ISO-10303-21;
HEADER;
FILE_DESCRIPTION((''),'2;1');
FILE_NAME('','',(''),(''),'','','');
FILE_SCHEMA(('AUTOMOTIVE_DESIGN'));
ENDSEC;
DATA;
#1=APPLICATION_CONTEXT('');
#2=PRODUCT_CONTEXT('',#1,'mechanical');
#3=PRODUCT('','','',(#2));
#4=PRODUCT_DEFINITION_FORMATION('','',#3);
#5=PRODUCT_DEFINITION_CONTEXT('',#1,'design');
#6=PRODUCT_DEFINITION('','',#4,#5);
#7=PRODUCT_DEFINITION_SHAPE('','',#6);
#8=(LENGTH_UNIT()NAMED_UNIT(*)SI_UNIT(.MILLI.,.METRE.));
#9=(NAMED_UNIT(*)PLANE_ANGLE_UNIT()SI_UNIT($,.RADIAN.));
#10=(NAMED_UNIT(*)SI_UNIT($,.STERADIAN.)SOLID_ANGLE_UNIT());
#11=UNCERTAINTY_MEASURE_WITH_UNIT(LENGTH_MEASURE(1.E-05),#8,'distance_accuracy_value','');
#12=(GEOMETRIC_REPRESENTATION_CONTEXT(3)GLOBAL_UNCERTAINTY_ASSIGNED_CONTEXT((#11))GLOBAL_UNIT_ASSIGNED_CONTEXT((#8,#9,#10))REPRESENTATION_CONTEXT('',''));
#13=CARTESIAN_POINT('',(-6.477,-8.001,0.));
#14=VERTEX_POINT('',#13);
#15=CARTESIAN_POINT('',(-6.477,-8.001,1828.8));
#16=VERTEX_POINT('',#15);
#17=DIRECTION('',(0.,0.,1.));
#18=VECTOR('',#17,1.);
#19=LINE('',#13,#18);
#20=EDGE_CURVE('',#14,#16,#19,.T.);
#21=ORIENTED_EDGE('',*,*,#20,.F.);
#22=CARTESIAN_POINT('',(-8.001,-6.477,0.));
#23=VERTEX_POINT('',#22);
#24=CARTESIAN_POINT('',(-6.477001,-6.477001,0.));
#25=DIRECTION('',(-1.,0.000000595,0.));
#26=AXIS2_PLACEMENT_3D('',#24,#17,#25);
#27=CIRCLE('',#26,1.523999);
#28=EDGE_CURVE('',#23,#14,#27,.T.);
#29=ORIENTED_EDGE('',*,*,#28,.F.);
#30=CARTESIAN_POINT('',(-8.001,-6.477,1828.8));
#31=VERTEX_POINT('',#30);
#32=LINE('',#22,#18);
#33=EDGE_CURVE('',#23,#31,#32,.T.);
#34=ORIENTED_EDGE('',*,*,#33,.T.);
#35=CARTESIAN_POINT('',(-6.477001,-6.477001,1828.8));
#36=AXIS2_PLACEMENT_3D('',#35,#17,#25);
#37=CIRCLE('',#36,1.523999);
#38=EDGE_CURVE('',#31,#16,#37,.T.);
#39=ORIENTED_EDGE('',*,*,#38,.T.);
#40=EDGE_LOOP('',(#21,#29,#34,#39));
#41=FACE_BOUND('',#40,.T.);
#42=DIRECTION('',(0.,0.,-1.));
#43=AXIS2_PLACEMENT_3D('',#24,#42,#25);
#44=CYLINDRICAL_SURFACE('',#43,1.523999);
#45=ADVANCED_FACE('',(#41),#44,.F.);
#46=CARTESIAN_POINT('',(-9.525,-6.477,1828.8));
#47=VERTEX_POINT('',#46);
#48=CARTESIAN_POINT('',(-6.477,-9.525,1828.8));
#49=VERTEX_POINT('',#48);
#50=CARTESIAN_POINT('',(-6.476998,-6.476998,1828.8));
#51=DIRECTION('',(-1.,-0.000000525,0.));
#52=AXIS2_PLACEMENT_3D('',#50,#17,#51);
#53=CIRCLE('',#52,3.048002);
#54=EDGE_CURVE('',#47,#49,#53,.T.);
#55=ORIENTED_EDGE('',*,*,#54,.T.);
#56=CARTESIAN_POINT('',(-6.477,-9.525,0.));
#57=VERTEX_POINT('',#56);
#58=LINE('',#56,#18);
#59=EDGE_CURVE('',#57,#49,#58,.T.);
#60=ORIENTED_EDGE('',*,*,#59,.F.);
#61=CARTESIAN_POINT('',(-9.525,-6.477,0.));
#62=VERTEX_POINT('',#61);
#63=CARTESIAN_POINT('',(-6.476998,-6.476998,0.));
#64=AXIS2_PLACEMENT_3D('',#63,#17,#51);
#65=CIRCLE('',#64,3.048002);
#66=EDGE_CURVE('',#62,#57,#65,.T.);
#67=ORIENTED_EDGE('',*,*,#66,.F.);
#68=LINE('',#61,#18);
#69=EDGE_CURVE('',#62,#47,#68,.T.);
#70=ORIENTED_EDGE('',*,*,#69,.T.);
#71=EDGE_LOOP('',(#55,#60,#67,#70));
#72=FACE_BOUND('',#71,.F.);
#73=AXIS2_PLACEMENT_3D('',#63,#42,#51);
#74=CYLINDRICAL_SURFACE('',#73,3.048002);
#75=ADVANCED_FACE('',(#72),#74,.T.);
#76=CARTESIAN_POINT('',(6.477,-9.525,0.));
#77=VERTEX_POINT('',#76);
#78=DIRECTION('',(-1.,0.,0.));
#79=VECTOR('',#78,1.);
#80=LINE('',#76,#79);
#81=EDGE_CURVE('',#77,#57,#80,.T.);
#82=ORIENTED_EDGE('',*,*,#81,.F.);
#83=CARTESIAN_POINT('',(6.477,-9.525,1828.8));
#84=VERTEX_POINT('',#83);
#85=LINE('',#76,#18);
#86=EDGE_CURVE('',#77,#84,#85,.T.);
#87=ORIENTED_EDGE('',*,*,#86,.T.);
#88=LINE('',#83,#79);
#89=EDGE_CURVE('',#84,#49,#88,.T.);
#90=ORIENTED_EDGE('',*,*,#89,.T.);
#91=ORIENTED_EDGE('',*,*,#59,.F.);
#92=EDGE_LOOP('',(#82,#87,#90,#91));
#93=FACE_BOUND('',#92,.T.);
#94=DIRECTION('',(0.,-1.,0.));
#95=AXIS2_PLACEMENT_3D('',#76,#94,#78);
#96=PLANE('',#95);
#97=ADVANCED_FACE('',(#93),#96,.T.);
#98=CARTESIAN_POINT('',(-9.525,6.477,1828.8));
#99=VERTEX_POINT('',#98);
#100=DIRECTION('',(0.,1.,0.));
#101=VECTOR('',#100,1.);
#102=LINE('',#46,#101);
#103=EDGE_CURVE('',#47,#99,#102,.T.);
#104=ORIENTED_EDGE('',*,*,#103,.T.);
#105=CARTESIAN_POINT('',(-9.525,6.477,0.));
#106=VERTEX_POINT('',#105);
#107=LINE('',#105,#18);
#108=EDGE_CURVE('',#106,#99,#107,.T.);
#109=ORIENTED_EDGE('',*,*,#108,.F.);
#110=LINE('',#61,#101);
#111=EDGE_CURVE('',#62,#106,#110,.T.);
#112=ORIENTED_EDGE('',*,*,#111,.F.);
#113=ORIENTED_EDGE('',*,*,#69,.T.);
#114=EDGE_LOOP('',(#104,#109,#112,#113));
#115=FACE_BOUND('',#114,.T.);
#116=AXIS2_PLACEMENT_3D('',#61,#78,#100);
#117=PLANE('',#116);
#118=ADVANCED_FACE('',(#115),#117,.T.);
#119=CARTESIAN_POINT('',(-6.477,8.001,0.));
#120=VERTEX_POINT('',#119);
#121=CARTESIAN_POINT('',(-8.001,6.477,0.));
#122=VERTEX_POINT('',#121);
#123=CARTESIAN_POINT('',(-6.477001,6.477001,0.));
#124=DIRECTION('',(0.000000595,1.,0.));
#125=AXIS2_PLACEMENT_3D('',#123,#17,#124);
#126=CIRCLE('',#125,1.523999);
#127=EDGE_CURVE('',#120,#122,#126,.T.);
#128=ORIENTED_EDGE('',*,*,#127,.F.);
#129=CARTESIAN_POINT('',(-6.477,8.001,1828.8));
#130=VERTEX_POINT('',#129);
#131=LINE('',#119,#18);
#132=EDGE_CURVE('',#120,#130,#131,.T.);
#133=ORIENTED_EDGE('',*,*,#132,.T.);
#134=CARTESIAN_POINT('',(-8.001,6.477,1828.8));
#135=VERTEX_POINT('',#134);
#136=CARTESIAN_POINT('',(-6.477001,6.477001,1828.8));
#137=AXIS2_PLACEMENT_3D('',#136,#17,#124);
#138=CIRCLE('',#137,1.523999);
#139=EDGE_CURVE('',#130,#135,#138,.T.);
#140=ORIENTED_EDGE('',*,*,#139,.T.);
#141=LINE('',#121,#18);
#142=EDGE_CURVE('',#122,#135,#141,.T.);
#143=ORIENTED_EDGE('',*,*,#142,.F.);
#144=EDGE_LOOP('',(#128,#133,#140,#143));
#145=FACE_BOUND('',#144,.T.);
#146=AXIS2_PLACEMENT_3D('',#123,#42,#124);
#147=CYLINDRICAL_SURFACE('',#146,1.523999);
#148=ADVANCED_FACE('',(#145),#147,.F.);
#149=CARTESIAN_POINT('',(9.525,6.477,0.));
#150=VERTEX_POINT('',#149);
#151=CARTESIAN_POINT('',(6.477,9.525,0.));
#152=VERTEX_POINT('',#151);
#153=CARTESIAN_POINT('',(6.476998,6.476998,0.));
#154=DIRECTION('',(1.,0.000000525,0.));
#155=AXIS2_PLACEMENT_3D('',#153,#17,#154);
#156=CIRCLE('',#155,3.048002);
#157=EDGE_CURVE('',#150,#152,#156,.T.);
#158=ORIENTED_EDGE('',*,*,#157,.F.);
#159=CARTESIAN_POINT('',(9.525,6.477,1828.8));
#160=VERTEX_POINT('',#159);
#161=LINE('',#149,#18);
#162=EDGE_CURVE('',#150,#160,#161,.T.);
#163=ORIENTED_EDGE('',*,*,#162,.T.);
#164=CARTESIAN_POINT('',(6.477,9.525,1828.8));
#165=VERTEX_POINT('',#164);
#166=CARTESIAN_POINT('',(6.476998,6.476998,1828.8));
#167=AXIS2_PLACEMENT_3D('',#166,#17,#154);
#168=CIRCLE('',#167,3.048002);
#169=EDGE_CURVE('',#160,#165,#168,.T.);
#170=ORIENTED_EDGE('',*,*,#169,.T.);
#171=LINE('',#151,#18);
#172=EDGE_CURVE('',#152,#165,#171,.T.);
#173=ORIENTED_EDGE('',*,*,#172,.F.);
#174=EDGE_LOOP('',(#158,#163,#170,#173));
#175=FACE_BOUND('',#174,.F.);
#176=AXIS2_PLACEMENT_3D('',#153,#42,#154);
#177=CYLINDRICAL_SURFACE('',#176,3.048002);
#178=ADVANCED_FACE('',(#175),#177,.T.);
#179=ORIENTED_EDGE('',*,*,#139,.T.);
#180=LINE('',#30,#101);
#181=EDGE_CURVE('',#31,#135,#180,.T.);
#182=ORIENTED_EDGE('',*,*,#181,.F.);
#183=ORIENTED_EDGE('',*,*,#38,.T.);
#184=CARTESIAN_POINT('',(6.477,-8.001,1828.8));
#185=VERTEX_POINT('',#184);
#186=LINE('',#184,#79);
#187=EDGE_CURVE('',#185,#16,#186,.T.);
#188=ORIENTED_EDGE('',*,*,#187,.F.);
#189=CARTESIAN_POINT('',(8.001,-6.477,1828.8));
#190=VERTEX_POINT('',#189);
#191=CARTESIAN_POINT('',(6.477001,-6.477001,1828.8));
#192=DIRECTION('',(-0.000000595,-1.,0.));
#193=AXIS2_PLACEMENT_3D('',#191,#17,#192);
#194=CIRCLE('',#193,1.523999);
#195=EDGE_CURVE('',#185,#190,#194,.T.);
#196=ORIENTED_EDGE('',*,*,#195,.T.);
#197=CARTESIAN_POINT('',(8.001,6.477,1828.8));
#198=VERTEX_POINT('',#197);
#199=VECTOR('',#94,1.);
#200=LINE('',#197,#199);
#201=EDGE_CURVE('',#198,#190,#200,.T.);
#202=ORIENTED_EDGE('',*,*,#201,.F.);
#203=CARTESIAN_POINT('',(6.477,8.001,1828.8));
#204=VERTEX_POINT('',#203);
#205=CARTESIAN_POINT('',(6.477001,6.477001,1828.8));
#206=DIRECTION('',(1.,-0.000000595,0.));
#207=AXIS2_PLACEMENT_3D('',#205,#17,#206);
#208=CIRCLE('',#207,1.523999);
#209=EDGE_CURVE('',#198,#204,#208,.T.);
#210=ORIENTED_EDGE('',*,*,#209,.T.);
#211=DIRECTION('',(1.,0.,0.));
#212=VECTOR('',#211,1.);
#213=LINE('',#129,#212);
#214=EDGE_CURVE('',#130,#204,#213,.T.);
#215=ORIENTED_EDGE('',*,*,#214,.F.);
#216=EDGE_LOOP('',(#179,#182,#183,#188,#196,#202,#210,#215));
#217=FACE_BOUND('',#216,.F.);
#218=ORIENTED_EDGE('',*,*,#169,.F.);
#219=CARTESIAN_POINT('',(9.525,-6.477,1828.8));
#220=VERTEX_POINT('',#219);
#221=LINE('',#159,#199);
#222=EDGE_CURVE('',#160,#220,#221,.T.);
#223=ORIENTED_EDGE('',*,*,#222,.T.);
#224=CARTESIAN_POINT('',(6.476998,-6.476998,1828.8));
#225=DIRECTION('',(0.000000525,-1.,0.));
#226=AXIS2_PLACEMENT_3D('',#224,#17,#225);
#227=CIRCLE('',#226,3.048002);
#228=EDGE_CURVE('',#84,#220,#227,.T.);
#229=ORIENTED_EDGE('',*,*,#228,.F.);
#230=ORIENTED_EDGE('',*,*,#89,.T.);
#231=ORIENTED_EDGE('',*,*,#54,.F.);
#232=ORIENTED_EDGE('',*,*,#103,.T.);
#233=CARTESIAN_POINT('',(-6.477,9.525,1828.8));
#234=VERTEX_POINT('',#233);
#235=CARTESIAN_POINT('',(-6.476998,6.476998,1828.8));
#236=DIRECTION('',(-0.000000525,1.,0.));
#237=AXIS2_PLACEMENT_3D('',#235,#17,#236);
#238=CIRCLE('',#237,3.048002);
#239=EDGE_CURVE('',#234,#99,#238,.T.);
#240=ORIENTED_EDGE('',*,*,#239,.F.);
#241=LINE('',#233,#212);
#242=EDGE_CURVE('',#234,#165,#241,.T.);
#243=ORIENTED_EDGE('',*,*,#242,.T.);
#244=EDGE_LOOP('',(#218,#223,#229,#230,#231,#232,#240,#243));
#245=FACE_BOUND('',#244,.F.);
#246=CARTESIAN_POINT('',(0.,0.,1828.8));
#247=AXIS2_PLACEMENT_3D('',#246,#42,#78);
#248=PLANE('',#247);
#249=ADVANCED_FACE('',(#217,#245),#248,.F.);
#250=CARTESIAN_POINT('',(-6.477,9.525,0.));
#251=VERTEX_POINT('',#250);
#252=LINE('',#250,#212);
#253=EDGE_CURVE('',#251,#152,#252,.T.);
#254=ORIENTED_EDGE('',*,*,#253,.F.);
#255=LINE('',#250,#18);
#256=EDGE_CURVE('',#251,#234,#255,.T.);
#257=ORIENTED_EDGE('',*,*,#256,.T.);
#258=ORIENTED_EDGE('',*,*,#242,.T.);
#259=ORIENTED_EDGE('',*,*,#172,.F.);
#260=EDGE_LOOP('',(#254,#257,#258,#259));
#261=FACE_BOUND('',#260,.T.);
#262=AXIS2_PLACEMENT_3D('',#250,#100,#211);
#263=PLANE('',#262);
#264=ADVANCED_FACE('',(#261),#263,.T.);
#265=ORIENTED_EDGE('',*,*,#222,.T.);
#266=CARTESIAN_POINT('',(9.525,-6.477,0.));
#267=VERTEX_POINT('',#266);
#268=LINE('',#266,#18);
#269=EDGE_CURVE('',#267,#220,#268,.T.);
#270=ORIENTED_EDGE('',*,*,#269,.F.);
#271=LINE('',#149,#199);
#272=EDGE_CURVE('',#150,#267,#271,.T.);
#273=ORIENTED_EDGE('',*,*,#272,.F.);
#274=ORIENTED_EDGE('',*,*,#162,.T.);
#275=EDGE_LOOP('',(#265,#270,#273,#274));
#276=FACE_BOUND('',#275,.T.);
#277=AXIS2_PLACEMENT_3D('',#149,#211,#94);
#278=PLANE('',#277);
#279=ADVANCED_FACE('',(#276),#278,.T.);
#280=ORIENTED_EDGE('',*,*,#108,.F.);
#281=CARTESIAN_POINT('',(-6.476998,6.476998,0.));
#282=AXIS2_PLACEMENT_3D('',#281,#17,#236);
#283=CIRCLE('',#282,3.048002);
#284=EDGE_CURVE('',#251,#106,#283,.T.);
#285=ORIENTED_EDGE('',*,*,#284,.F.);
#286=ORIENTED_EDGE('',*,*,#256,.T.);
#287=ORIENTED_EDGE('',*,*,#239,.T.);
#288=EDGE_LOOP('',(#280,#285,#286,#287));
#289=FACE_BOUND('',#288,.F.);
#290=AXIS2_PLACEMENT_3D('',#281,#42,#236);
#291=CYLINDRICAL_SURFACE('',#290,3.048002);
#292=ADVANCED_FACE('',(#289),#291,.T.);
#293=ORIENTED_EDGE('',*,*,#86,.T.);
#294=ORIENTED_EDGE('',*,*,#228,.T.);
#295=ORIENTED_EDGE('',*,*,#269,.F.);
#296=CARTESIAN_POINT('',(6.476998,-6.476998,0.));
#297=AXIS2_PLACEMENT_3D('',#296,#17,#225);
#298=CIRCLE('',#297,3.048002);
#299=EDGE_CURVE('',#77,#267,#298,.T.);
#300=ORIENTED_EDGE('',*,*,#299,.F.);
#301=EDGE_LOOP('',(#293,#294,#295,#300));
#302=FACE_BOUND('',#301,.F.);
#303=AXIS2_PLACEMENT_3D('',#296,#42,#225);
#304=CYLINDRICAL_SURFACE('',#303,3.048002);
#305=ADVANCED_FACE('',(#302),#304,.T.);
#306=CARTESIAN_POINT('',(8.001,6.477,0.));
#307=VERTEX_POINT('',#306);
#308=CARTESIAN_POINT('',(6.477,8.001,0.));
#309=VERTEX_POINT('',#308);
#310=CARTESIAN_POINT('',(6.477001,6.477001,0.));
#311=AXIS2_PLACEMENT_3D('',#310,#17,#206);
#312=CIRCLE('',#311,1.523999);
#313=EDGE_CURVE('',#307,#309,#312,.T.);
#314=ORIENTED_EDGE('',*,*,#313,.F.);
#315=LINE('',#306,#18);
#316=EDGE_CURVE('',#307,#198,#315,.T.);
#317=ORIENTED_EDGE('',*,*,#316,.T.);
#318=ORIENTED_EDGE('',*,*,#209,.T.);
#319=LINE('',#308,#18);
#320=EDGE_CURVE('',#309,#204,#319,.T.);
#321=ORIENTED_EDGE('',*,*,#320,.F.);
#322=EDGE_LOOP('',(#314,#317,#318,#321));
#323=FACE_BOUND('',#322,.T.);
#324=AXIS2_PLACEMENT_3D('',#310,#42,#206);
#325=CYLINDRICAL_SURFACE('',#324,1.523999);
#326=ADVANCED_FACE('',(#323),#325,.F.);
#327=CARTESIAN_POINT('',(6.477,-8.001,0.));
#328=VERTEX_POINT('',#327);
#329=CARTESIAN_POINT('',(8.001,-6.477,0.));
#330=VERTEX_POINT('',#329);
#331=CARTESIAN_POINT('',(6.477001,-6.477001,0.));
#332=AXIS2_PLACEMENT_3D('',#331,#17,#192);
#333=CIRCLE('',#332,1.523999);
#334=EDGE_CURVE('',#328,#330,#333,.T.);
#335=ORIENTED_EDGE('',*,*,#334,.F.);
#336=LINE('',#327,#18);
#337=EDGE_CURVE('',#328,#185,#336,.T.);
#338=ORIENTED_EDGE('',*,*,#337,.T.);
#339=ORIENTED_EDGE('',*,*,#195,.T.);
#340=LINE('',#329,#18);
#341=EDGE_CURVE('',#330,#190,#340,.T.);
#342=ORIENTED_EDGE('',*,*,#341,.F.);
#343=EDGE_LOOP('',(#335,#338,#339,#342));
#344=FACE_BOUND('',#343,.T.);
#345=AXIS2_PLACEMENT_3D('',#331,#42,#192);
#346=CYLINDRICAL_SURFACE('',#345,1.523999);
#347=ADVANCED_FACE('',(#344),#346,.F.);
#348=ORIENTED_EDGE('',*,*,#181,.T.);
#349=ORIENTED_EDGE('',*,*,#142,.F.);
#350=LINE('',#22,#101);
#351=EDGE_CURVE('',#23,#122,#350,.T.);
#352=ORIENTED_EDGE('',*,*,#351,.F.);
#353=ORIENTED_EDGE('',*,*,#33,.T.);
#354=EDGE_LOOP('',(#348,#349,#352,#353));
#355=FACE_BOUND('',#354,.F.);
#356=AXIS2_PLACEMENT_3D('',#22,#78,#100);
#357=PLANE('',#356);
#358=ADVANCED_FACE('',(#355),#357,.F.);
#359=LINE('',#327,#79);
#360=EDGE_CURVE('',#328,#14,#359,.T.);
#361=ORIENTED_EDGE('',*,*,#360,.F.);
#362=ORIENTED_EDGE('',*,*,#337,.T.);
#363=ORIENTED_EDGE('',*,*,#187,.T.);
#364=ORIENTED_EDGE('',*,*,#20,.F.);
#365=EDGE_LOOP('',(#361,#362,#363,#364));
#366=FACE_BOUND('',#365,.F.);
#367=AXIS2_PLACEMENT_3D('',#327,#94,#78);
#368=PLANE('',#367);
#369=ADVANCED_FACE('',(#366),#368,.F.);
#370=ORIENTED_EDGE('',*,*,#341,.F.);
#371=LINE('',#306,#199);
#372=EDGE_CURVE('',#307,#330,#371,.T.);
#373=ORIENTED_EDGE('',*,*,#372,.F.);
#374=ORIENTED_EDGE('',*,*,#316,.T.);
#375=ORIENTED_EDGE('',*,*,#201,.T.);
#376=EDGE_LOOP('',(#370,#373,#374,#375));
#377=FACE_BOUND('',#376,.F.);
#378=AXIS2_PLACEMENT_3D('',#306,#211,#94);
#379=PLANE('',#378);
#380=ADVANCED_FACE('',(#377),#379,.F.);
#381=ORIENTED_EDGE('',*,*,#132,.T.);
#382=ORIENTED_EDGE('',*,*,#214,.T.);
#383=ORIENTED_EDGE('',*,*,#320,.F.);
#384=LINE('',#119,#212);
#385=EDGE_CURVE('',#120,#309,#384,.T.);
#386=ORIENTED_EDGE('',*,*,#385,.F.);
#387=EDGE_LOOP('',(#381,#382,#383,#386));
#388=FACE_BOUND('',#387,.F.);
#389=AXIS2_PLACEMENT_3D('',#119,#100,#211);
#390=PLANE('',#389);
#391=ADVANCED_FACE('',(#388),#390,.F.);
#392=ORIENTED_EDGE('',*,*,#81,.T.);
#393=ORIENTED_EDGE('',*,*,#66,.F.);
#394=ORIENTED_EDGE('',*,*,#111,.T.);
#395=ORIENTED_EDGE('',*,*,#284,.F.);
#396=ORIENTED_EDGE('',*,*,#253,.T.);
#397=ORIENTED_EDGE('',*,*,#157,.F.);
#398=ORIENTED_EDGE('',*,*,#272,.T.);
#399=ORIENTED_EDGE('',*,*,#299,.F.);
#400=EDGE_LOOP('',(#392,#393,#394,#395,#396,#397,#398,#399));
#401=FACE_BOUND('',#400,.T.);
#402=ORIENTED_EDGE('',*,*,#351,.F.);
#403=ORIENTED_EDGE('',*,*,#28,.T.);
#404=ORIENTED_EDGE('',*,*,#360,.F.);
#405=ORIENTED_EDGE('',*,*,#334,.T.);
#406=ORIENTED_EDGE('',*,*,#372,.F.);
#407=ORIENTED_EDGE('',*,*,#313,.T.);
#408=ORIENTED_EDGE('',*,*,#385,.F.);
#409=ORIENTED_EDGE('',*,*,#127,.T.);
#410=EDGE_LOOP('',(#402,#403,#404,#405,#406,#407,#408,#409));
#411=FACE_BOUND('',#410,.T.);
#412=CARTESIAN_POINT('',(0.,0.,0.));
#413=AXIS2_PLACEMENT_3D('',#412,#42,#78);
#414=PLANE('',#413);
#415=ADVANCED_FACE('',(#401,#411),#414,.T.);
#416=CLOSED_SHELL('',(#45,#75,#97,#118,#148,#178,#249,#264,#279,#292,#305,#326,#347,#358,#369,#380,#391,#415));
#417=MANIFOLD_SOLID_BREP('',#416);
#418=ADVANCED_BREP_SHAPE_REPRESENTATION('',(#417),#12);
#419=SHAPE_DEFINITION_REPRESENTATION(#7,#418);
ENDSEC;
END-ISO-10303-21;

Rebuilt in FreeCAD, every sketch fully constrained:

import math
import FreeCAD as App
import Part
import Sketcher
Q = App.Units.Quantity

doc = App.newDocument("Part")
body = doc.addObject("PartDesign::Body", "Body")

# Sketch on XY plane
sketch1 = body.newObject("Sketcher::SketchObject", "Sketch")
sketch1.AttachmentSupport = (doc.getObject("XY_Plane"), [""])
sketch1.MapMode = "FlatFace"
sketch1.addGeometry([
    Part.LineSegment(App.Vector(6.5, 9.5, 0), App.Vector(-6.5, 9.5, 0)),  # 0
    Part.ArcOfCircle(Part.Circle(App.Vector(-6.5, 6.5, 0), App.Vector(0, 0, 1), 3), math.radians(90), math.radians(180)),  # 1
    Part.LineSegment(App.Vector(-9.5, 6.5, 0), App.Vector(-9.5, -6.5, 0)),  # 2
    Part.ArcOfCircle(Part.Circle(App.Vector(-6.5, -6.5, 0), App.Vector(0, 0, 1), 3), math.radians(-180), math.radians(-90)),  # 3
    Part.LineSegment(App.Vector(-6.5, -9.5, 0), App.Vector(6.5, -9.5, 0)),  # 4
    Part.ArcOfCircle(Part.Circle(App.Vector(6.5, -6.5, 0), App.Vector(0, 0, 1), 3), math.radians(-90), math.radians(0)),  # 5
    Part.LineSegment(App.Vector(9.5, -6.5, 0), App.Vector(9.5, 6.5, 0)),  # 6
    Part.ArcOfCircle(Part.Circle(App.Vector(6.5, 6.5, 0), App.Vector(0, 0, 1), 3), math.radians(0), math.radians(90)),  # 7
    Part.LineSegment(App.Vector(-6.5, 8, 0), App.Vector(6.5, 8, 0)),  # 8
    Part.ArcOfCircle(Part.Circle(App.Vector(6.5, 6.5, 0), App.Vector(0, 0, 1), 1.5), math.radians(0), math.radians(90)),  # 9
    Part.LineSegment(App.Vector(8, 6.5, 0), App.Vector(8, -6.5, 0)),  # 10
    Part.ArcOfCircle(Part.Circle(App.Vector(6.5, -6.5, 0), App.Vector(0, 0, 1), 1.5), math.radians(-90), math.radians(0)),  # 11
    Part.LineSegment(App.Vector(6.5, -8, 0), App.Vector(-6.5, -8, 0)),  # 12
    Part.ArcOfCircle(Part.Circle(App.Vector(-6.5, -6.5, 0), App.Vector(0, 0, 1), 1.5), math.radians(180), math.radians(270)),  # 13
    Part.LineSegment(App.Vector(-8, -6.5, 0), App.Vector(-8, 6.5, 0)),  # 14
    Part.ArcOfCircle(Part.Circle(App.Vector(-6.5, 6.5, 0), App.Vector(0, 0, 1), 1.5), math.radians(90), math.radians(180)),  # 15
], False)
sketch1.addConstraint([
    Sketcher.Constraint("Tangent", 0, 2, 1, 1),
    Sketcher.Constraint("Tangent", 1, 2, 2, 1),
    Sketcher.Constraint("Tangent", 2, 2, 3, 1),
    Sketcher.Constraint("Tangent", 3, 2, 4, 1),
    Sketcher.Constraint("Tangent", 4, 2, 5, 1),
    Sketcher.Constraint("Tangent", 5, 2, 6, 1),
    Sketcher.Constraint("Tangent", 6, 2, 7, 1),
    Sketcher.Constraint("Tangent", 7, 2, 0, 1),
    Sketcher.Constraint("Tangent", 8, 2, 9, 2),
    Sketcher.Constraint("Tangent", 9, 1, 10, 1),
    Sketcher.Constraint("Tangent", 10, 2, 11, 2),
    Sketcher.Constraint("Tangent", 11, 1, 12, 1),
    Sketcher.Constraint("Tangent", 12, 2, 13, 2),
    Sketcher.Constraint("Tangent", 13, 1, 14, 1),
    Sketcher.Constraint("Tangent", 14, 2, 15, 2),
    Sketcher.Constraint("Tangent", 15, 1, 8, 1),
    Sketcher.Constraint("Horizontal", 0),
    Sketcher.Constraint("Vertical", 2),
    Sketcher.Constraint("Horizontal", 4),
    Sketcher.Constraint("Vertical", 6),
    Sketcher.Constraint("Horizontal", 8),
    Sketcher.Constraint("Vertical", 10),
    Sketcher.Constraint("Horizontal", 12),
    Sketcher.Constraint("Vertical", 14),
    Sketcher.Constraint("Coincident", 9, 3, 7, 3),
    Sketcher.Constraint("Coincident", 11, 3, 5, 3),
    Sketcher.Constraint("Coincident", 13, 3, 3, 3),
    Sketcher.Constraint("Equal", 1, 3),
    Sketcher.Constraint("Equal", 3, 5),
    Sketcher.Constraint("Equal", 5, 7),
    Sketcher.Constraint("Equal", 13, 15),
    Sketcher.Constraint("Symmetric", 1, 3, 5, 3, -1, 1),
    Sketcher.Constraint("Equal", 12, 2),
    Sketcher.Constraint("Radius", 1, Q("0.1200001 in")),
    Sketcher.Constraint("Radius", 9, Q("0.06 in")),
    Sketcher.Constraint("DistanceX", 0, 2, 0, 1, Q("0.51 in")),
])
pad1 = body.newObject("PartDesign::Pad", "Pad")
pad1.Profile = sketch1
pad1.Length = Q("72 in")

doc.recompute()
